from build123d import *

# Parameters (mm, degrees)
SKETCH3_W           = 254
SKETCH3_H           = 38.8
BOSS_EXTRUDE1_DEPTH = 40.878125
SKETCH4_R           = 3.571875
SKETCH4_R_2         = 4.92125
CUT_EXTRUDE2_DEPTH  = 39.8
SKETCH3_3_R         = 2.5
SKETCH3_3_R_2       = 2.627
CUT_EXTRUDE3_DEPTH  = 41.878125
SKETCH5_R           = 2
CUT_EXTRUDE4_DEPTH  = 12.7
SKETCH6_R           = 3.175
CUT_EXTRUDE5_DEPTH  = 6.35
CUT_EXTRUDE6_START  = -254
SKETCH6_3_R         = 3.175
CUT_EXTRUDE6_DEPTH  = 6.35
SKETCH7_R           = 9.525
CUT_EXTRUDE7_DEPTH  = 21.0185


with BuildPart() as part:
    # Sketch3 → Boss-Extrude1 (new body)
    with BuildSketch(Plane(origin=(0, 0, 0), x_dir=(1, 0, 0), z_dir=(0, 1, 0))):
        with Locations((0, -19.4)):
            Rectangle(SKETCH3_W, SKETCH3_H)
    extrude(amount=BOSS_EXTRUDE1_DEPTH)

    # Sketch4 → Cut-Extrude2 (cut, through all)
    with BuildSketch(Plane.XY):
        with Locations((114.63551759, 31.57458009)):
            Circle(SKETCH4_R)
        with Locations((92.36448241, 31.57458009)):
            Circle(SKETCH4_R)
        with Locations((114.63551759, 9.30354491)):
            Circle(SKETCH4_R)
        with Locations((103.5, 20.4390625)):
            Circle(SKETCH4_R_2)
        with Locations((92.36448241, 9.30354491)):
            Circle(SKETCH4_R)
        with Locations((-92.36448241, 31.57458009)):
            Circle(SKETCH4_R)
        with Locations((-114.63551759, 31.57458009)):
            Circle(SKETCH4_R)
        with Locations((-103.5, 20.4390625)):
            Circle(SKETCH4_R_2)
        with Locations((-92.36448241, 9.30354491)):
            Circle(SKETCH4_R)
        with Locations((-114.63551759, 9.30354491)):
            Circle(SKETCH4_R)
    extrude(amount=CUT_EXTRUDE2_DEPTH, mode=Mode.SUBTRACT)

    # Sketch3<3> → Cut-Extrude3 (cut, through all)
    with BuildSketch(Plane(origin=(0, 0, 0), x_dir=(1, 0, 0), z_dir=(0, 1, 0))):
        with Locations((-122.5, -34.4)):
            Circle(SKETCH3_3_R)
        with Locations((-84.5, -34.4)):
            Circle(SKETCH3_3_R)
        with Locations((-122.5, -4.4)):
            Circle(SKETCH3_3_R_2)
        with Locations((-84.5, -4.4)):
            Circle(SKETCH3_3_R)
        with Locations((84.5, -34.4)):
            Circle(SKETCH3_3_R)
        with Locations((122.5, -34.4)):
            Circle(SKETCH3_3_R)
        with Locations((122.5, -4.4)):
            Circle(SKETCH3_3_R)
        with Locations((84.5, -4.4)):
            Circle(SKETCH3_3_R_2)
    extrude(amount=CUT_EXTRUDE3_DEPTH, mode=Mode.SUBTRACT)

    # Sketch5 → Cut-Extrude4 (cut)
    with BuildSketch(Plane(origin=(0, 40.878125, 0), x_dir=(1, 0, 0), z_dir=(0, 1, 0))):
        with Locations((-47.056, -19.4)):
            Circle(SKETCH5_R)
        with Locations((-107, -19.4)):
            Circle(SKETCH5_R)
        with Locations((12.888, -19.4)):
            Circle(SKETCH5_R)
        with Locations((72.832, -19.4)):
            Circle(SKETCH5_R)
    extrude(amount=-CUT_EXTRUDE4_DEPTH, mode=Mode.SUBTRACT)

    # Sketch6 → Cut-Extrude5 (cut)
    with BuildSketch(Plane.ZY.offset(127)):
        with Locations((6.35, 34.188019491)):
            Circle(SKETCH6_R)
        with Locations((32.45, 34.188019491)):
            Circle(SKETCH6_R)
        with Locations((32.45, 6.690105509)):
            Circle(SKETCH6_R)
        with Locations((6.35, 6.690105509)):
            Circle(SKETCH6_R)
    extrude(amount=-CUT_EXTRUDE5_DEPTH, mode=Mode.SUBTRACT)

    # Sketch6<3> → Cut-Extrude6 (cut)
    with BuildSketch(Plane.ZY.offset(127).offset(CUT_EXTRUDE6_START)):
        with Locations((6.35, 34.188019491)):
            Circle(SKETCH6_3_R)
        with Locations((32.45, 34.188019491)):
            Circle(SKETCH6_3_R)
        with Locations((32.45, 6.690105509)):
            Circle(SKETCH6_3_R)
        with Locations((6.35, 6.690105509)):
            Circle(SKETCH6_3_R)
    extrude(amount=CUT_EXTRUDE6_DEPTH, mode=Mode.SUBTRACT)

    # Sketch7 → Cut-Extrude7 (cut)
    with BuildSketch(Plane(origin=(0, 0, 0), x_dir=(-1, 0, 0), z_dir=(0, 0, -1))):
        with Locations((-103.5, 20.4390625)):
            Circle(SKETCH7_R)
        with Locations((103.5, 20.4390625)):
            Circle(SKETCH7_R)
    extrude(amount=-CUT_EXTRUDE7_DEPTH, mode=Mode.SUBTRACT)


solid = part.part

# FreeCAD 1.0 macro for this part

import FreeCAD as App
import Part
import Sketcher

V = App.Vector
Q = App.Units.Quantity

doc = App.newDocument("Part")
body = doc.addObject("PartDesign::Body", "Body")

# Sketch on XZ plane
sketch1 = body.newObject("Sketcher::SketchObject", "Sketch")
sketch1.AttachmentSupport = (doc.getObject("XZ_Plane"), [""])
sketch1.MapMode = "FlatFace"
sketch1.addGeometry([
    Part.LineSegment(V(-127, 0, 0), V(-127, 39, 0)),
    Part.LineSegment(V(-127, 39, 0), V(127, 39, 0)),
    Part.LineSegment(V(127, 39, 0), V(127, 0, 0)),
    Part.LineSegment(V(127, 0, 0), V(-127, 0, 0)),
], False)
sketch1.addConstraint([
    Sketcher.Constraint("Coincident", 0, 2, 1, 1),
    Sketcher.Constraint("Coincident", 1, 2, 2, 1),
    Sketcher.Constraint("Coincident", 2, 2, 3, 1),
    Sketcher.Constraint("Coincident", 3, 2, 0, 1),
    Sketcher.Constraint("Vertical", 0),
    Sketcher.Constraint("Horizontal", 1),
    Sketcher.Constraint("Vertical", 2),
    Sketcher.Constraint("Horizontal", 3),
    Sketcher.Constraint("Symmetric", 2, 2, 3, 2, -1, 1),
    Sketcher.Constraint("DistanceX", 1, 1, 1, 2, Q("10 in")),
    Sketcher.Constraint("DistanceY", 0, 1, 0, 2, 38.8),
])
pad1 = body.newObject("PartDesign::Pad", "Pad")
pad1.Profile = sketch1
pad1.Length = Q("1.609375 in")
pad1.Reversed = True

# Sketch on XY plane
sketch2 = body.newObject("Sketcher::SketchObject", "Sketch001")
sketch2.AttachmentSupport = (doc.getObject("XY_Plane"), [""])
sketch2.MapMode = "FlatFace"
sketch2.addGeometry([
    Part.Circle(V(114.6, 31.6, 0), V(0, 0, 1), 3.6),  # 0
    Part.Circle(V(92.4, 31.6, 0), V(0, 0, 1), 3.6),  # 1
    Part.Circle(V(114.6, 9.3, 0), V(0, 0, 1), 3.6),  # 2
    Part.Circle(V(103.5, 20.4, 0), V(0, 0, 1), 4.9),  # 3
    Part.Circle(V(92.4, 9.3, 0), V(0, 0, 1), 3.6),  # 4
    Part.Circle(V(-92.4, 31.6, 0), V(0, 0, 1), 3.6),  # 5
    Part.Circle(V(-114.6, 31.6, 0), V(0, 0, 1), 3.6),  # 6
    Part.Circle(V(-103.5, 20.4, 0), V(0, 0, 1), 4.9),  # 7
    Part.Circle(V(-92.4, 9.3, 0), V(0, 0, 1), 3.6),  # 8
    Part.Circle(V(-114.6, 9.3, 0), V(0, 0, 1), 3.6),  # 9
], False)
sketch2.addConstraint([
    Sketcher.Constraint("Equal", 0, 1),
    Sketcher.Constraint("Equal", 1, 2),
    Sketcher.Constraint("Equal", 2, 4),
    Sketcher.Constraint("Equal", 4, 5),
    Sketcher.Constraint("Equal", 5, 6),
    Sketcher.Constraint("Equal", 3, 7),
    Sketcher.Constraint("Equal", 6, 8),
    Sketcher.Constraint("Equal", 8, 9),
    Sketcher.Constraint("Symmetric", 1, 3, 5, 3, -2),
    Sketcher.Constraint("Symmetric", 0, 3, 6, 3, -2),
    Sketcher.Constraint("Symmetric", 3, 3, 7, 3, -2),
    Sketcher.Constraint("Symmetric", 4, 3, 8, 3, -2),
    Sketcher.Constraint("Symmetric", 2, 3, 9, 3, -2),
    Sketcher.Constraint("Horizontal", 0, 3, 1, 3),
    Sketcher.Constraint("Horizontal", 2, 3, 4, 3),
    Sketcher.Constraint("Vertical", 0, 3, 2, 3),
    Sketcher.Constraint("Vertical", 1, 3, 4, 3),
    Sketcher.Constraint("Diameter", 0, Q("0.28125 in")),
    Sketcher.Constraint("Diameter", 3, Q("0.3875 in")),
    Sketcher.Constraint("DistanceX", 5, 3, 3, 3, Q("7.7112001 in")),
    Sketcher.Constraint("DistanceX", -1, 1, 3, 3, 103.5),
    Sketcher.Constraint("DistanceX", 5, 3, 0, 3, 207.0),
    Sketcher.Constraint("DistanceY", -1, 1, 0, 3, 31.57458),
    Sketcher.Constraint("DistanceY", -1, 1, 2, 3, 9.303545),
    Sketcher.Constraint("DistanceY", -1, 1, 3, 3, 20.439062),
])
pocket1 = body.newObject("PartDesign::Pocket", "Pocket")
pocket1.Profile = sketch2
pocket1.Type = "ThroughAll"
pocket1.Reversed = True

# Sketch on XZ plane
sketch3 = body.newObject("Sketcher::SketchObject", "Sketch002")
sketch3.AttachmentSupport = (doc.getObject("XZ_Plane"), [""])
sketch3.MapMode = "FlatFace"
sketch3.addGeometry([
    Part.Circle(V(-122.5, 34.4, 0), V(0, 0, 1), 2.5),  # 0
    Part.Circle(V(-84.5, 34.4, 0), V(0, 0, 1), 2.5),  # 1
    Part.Circle(V(-122.5, 4.4, 0), V(0, 0, 1), 2.6),  # 2
    Part.Circle(V(-84.5, 4.4, 0), V(0, 0, 1), 2.5),  # 3
    Part.Circle(V(84.5, 34.4, 0), V(0, 0, 1), 2.5),  # 4
    Part.Circle(V(122.5, 34.4, 0), V(0, 0, 1), 2.5),  # 5
    Part.Circle(V(122.5, 4.4, 0), V(0, 0, 1), 2.5),  # 6
    Part.Circle(V(84.5, 4.4, 0), V(0, 0, 1), 2.6),  # 7
], False)
sketch3.addConstraint([
    Sketcher.Constraint("Equal", 0, 1),
    Sketcher.Constraint("Equal", 1, 3),
    Sketcher.Constraint("Equal", 3, 4),
    Sketcher.Constraint("Equal", 4, 5),
    Sketcher.Constraint("Equal", 5, 6),
    Sketcher.Constraint("Equal", 2, 7),
    Sketcher.Constraint("Symmetric", 1, 3, 4, 3, -2),
    Sketcher.Constraint("Symmetric", 0, 3, 5, 3, -2),
    Sketcher.Constraint("Symmetric", 2, 3, 6, 3, -2),
    Sketcher.Constraint("Symmetric", 3, 3, 7, 3, -2),
    Sketcher.Constraint("Horizontal", 0, 3, 1, 3),
    Sketcher.Constraint("Horizontal", 2, 3, 3, 3),
    Sketcher.Constraint("Vertical", 0, 3, 2, 3),
    Sketcher.Constraint("Vertical", 1, 3, 3, 3),
    Sketcher.Constraint("Diameter", 0, 5.0),
    Sketcher.Constraint("Diameter", 2, 5.254),
    Sketcher.Constraint("DistanceX", 0, 3, -1, 1, 122.5),
    Sketcher.Constraint("DistanceY", -1, 1, 0, 3, 34.4),
    Sketcher.Constraint("DistanceX", 1, 3, -1, 1, 84.5),
    Sketcher.Constraint("DistanceY", -1, 1, 2, 3, 4.4),
])
pocket2 = body.newObject("PartDesign::Pocket", "Pocket001")
pocket2.Profile = sketch3
pocket2.Type = "ThroughAll"

# Sketch on XZ plane
sketch4 = body.newObject("Sketcher::SketchObject", "Sketch003")
sketch4.AttachmentSupport = (doc.getObject("XZ_Plane"), [""])
sketch4.MapMode = "FlatFace"
sketch4.AttachmentOffset = App.Placement(V(0, 0, -1.609375 * 25.4), App.Rotation())
sketch4.addGeometry([
    Part.Circle(V(-47.1, 19.4, 0), V(0, 0, 1), 2),
    Part.Circle(V(-107, 19.4, 0), V(0, 0, 1), 2),
    Part.Circle(V(12.9, 19.4, 0), V(0, 0, 1), 2),
    Part.Circle(V(72.8, 19.4, 0), V(0, 0, 1), 2),
], False)
sketch4.addConstraint([
    Sketcher.Constraint("Equal", 0, 1),
    Sketcher.Constraint("Equal", 1, 2),
    Sketcher.Constraint("Equal", 2, 3),
    Sketcher.Constraint("Horizontal", 0, 3, 1, 3),
    Sketcher.Constraint("Horizontal", 1, 3, 2, 3),
    Sketcher.Constraint("Horizontal", 2, 3, 3, 3),
    Sketcher.Constraint("Diameter", 0, 4.0),
    Sketcher.Constraint("DistanceX", 1, 3, 0, 3, Q("2.36 in")),
    Sketcher.Constraint("DistanceX", 0, 3, 2, 3, Q("2.36 in")),
    Sketcher.Constraint("DistanceX", 2, 3, 3, 3, Q("2.36 in")),
    Sketcher.Constraint("DistanceX", 0, 3, -1, 1, 47.056),
    Sketcher.Constraint("DistanceY", -1, 1, 0, 3, 19.4),
])
pocket3 = body.newObject("PartDesign::Pocket", "Pocket002")
pocket3.Profile = sketch4
pocket3.Length = Q("0.5 in")
pocket3.Reversed = True

# Sketch on YZ plane
sketch5 = body.newObject("Sketcher::SketchObject", "Sketch004")
sketch5.AttachmentSupport = (doc.getObject("YZ_Plane"), [""])
sketch5.MapMode = "FlatFace"
sketch5.AttachmentOffset = App.Placement(V(0, 0, -5 * 25.4), App.Rotation())
sketch5.addGeometry([
    Part.Circle(V(34.2, 6.3, 0), V(0, 0, 1), 3.2),
    Part.Circle(V(34.2, 32.5, 0), V(0, 0, 1), 3.2),
    Part.Circle(V(6.7, 32.5, 0), V(0, 0, 1), 3.2),
    Part.Circle(V(6.7, 6.3, 0), V(0, 0, 1), 3.2),
], False)
sketch5.addConstraint([
    Sketcher.Constraint("Equal", 0, 1),
    Sketcher.Constraint("Equal", 1, 2),
    Sketcher.Constraint("Equal", 2, 3),
    Sketcher.Constraint("Horizontal", 1, 3, 2, 3),
    Sketcher.Constraint("Horizontal", 0, 3, 3, 3),
    Sketcher.Constraint("Vertical", 0, 3, 1, 3),
    Sketcher.Constraint("Vertical", 2, 3, 3, 3),
    Sketcher.Constraint("Diameter", 0, Q("0.25 in")),
    Sketcher.Constraint("DistanceY", -1, 1, 0, 3, Q("0.25 in")),
    Sketcher.Constraint("DistanceY", -1, 1, 1, 3, 32.45),
    Sketcher.Constraint("DistanceX", -1, 1, 0, 3, 34.188019),
    Sketcher.Constraint("DistanceX", -1, 1, 2, 3, 6.690106),
])
pocket4 = body.newObject("PartDesign::Pocket", "Pocket003")
pocket4.Profile = sketch5
pocket4.Length = Q("0.25 in")
pocket4.Reversed = True

# Sketch on YZ plane
sketch6 = body.newObject("Sketcher::SketchObject", "Sketch005")
sketch6.AttachmentSupport = (doc.getObject("YZ_Plane"), [""])
sketch6.MapMode = "FlatFace"
sketch6.AttachmentOffset = App.Placement(V(0, 0, 5 * 25.4), App.Rotation())
sketch6.addGeometry([
    Part.Circle(V(34.2, 6.3, 0), V(0, 0, 1), 3.2),
    Part.Circle(V(34.2, 32.5, 0), V(0, 0, 1), 3.2),
    Part.Circle(V(6.7, 32.5, 0), V(0, 0, 1), 3.2),
    Part.Circle(V(6.7, 6.3, 0), V(0, 0, 1), 3.2),
], False)
sketch6.addConstraint([
    Sketcher.Constraint("Equal", 0, 1),
    Sketcher.Constraint("Equal", 1, 2),
    Sketcher.Constraint("Equal", 2, 3),
    Sketcher.Constraint("Horizontal", 1, 3, 2, 3),
    Sketcher.Constraint("Horizontal", 0, 3, 3, 3),
    Sketcher.Constraint("Vertical", 0, 3, 1, 3),
    Sketcher.Constraint("Vertical", 2, 3, 3, 3),
    Sketcher.Constraint("Diameter", 0, Q("0.25 in")),
    Sketcher.Constraint("DistanceY", -1, 1, 0, 3, Q("0.25 in")),
    Sketcher.Constraint("DistanceY", -1, 1, 1, 3, 32.45),
    Sketcher.Constraint("DistanceX", -1, 1, 0, 3, 34.188019),
    Sketcher.Constraint("DistanceX", -1, 1, 2, 3, 6.690106),
])
pocket5 = body.newObject("PartDesign::Pocket", "Pocket004")
pocket5.Profile = sketch6
pocket5.Length = Q("0.25 in")

# Sketch on XY plane
sketch7 = body.newObject("Sketcher::SketchObject", "Sketch006")
sketch7.AttachmentSupport = (doc.getObject("XY_Plane"), [""])
sketch7.MapMode = "FlatFace"
sketch7.addGeometry([
    Part.Circle(V(104, 20, 0), V(0, 0, 1), 10),
    Part.Circle(V(-104, 20, 0), V(0, 0, 1), 10),
], False)
sketch7.addConstraint([
    Sketcher.Constraint("Equal", 0, 1),
    Sketcher.Constraint("Symmetric", 0, 3, 1, 3, -2),
    Sketcher.Constraint("Diameter", 0, Q("0.75 in")),
    Sketcher.Constraint("DistanceX", -1, 1, 0, 3, 103.5),
    Sketcher.Constraint("DistanceY", -1, 1, 0, 3, 20.439062),
])
pocket6 = body.newObject("PartDesign::Pocket", "Pocket005")
pocket6.Profile = sketch7
pocket6.Length = Q("0.8275 in")
pocket6.Reversed = True

doc.recompute()
